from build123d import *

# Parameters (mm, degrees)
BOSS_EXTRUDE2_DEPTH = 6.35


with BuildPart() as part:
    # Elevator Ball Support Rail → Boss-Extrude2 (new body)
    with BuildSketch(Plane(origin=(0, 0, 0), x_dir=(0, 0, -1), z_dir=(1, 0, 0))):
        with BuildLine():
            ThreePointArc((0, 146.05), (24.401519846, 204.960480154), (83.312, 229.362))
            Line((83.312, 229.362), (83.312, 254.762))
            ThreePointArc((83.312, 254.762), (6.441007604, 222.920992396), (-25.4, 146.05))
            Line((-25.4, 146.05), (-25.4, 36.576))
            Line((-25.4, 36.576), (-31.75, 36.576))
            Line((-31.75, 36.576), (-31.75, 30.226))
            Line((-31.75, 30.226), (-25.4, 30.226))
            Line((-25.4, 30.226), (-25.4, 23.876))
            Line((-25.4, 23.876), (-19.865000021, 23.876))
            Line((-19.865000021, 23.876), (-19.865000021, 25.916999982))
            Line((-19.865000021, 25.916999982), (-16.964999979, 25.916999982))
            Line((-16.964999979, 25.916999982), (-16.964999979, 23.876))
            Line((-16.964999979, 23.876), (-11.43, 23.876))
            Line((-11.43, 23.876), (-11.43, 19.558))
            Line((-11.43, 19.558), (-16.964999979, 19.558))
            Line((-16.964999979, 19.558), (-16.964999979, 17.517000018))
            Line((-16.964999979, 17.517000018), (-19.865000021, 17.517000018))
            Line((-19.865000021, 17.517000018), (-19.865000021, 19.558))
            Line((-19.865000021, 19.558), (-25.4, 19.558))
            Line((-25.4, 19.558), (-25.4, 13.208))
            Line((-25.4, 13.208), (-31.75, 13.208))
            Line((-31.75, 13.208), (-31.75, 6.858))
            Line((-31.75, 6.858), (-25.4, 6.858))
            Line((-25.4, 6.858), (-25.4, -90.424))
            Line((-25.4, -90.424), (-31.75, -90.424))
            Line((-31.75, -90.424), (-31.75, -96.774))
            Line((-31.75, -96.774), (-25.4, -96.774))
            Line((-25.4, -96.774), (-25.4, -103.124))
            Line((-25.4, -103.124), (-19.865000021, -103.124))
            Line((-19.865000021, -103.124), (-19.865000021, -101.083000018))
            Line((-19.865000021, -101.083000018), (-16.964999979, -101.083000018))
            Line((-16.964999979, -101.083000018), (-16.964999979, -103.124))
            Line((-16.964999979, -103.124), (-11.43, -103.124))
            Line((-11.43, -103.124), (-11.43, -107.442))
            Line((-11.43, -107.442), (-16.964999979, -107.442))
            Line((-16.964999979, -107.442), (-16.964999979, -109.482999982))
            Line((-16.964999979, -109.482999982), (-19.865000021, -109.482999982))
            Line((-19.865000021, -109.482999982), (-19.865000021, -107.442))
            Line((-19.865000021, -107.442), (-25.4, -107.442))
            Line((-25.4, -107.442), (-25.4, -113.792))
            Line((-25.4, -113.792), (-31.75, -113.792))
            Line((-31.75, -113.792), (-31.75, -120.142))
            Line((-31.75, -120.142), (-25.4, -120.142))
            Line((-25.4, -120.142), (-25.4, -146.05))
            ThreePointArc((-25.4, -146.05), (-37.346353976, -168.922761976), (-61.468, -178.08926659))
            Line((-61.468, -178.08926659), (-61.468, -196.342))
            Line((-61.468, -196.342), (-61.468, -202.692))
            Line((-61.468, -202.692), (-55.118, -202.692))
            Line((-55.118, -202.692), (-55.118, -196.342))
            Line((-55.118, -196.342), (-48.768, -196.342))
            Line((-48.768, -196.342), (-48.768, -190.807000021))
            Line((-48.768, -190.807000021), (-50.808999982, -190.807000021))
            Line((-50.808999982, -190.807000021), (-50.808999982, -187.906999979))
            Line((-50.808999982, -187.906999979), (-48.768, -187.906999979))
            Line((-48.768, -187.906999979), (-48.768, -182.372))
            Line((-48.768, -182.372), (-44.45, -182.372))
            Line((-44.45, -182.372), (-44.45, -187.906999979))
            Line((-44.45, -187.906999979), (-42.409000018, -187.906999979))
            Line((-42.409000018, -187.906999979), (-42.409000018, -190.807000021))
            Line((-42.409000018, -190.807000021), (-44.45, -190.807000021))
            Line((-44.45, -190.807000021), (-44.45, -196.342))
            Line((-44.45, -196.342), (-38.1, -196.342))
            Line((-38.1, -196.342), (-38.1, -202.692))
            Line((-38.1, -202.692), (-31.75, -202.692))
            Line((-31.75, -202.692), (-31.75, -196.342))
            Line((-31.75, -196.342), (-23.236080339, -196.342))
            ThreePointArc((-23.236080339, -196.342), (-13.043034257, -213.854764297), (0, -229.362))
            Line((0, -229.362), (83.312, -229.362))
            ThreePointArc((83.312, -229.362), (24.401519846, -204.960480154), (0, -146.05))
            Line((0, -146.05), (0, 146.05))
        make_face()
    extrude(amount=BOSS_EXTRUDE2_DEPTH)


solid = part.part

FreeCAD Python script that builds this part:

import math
import FreeCAD as App
import Part
import Sketcher

V = App.Vector
Q = App.Units.Quantity

doc = App.newDocument("Part")
body = doc.addObject("PartDesign::Body", "Body")

sketch1 = body.newObject("Sketcher::SketchObject", "Sketch")
sketch1.AttachmentSupport = (doc.getObject("YZ_Plane"), [""])
sketch1.MapMode = "FlatFace"
sketch1.addGeometry([
    Part.ArcOfCircle(Part.Circle(V(146.05, -83.312, 0), V(0, 0, 1), 83.312), math.radians(0), math.radians(90)),
    Part.LineSegment(V(229.362, -83.312, 0), V(254.762, -83.312, 0)),
    Part.ArcOfCircle(Part.Circle(V(146.05, -83.312, 0), V(0, 0, 1), 108.712), math.radians(0), math.radians(90)),
    Part.LineSegment(V(146.05, 25.4, 0), V(36.576, 25.4, 0)),
    Part.LineSegment(V(36.576, 25.4, 0), V(36.576, 31.75, 0)),
    Part.LineSegment(V(36.576, 31.75, 0), V(30.226, 31.75, 0)),
    Part.LineSegment(V(30.226, 31.75, 0), V(30.226, 25.4, 0)),
    Part.LineSegment(V(30.226, 25.4, 0), V(23.876, 25.4, 0)),
    Part.LineSegment(V(23.876, 25.4, 0), V(23.876, 19.865, 0)),
    Part.LineSegment(V(23.876, 19.865, 0), V(25.917, 19.865, 0)),
    Part.LineSegment(V(25.917, 19.865, 0), V(25.917, 16.965, 0)),
    Part.LineSegment(V(25.917, 16.965, 0), V(23.876, 16.965, 0)),
    Part.LineSegment(V(23.876, 16.965, 0), V(23.876, 11.43, 0)),
    Part.LineSegment(V(23.876, 11.43, 0), V(19.558, 11.43, 0)),
    Part.LineSegment(V(19.558, 11.43, 0), V(19.558, 16.965, 0)),
    Part.LineSegment(V(19.558, 16.965, 0), V(17.517, 16.965, 0)),
    Part.LineSegment(V(17.517, 16.965, 0), V(17.517, 19.865, 0)),
    Part.LineSegment(V(17.517, 19.865, 0), V(19.558, 19.865, 0)),
    Part.LineSegment(V(19.558, 19.865, 0), V(19.558, 25.4, 0)),
    Part.LineSegment(V(19.558, 25.4, 0), V(13.208, 25.4, 0)),
    Part.LineSegment(V(13.208, 25.4, 0), V(13.208, 31.75, 0)),
    Part.LineSegment(V(13.208, 31.75, 0), V(6.858, 31.75, 0)),
    Part.LineSegment(V(6.858, 31.75, 0), V(6.858, 25.4, 0)),
    Part.LineSegment(V(6.858, 25.4, 0), V(-90.424, 25.4, 0)),
    Part.LineSegment(V(-90.424, 25.4, 0), V(-90.424, 31.75, 0)),
    Part.LineSegment(V(-90.424, 31.75, 0), V(-96.774, 31.75, 0)),
    Part.LineSegment(V(-96.774, 31.75, 0), V(-96.774, 25.4, 0)),
    Part.LineSegment(V(-96.774, 25.4, 0), V(-103.124, 25.4, 0)),
    Part.LineSegment(V(-103.124, 25.4, 0), V(-103.124, 19.865, 0)),
    Part.LineSegment(V(-103.124, 19.865, 0), V(-101.083, 19.865, 0)),
    Part.LineSegment(V(-101.083, 19.865, 0), V(-101.083, 16.965, 0)),
    Part.LineSegment(V(-101.083, 16.965, 0), V(-103.124, 16.965, 0)),
    Part.LineSegment(V(-103.124, 16.965, 0), V(-103.124, 11.43, 0)),
    Part.LineSegment(V(-103.124, 11.43, 0), V(-107.442, 11.43, 0)),
    Part.LineSegment(V(-107.442, 11.43, 0), V(-107.442, 16.965, 0)),
    Part.LineSegment(V(-107.442, 16.965, 0), V(-109.483, 16.965, 0)),
    Part.LineSegment(V(-109.483, 16.965, 0), V(-109.483, 19.865, 0)),
    Part.LineSegment(V(-109.483, 19.865, 0), V(-107.442, 19.865, 0)),
    Part.LineSegment(V(-107.442, 19.865, 0), V(-107.442, 25.4, 0)),
    Part.LineSegment(V(-107.442, 25.4, 0), V(-113.792, 25.4, 0)),
    Part.LineSegment(V(-113.792, 25.4, 0), V(-113.792, 31.75, 0)),
    Part.LineSegment(V(-113.792, 31.75, 0), V(-120.142, 31.75, 0)),
    Part.LineSegment(V(-120.142, 31.75, 0), V(-120.142, 25.4, 0)),
    Part.LineSegment(V(-120.142, 25.4, 0), V(-146.05, 25.4, 0)),
    Part.ArcOfCircle(Part.Circle(V(-141.767973, 61.468, 0), V(0, 0, 1), 36.321294), math.radians(180), math.radians(263.229481)),
    Part.LineSegment(V(-178.089267, 61.468, 0), V(-202.692, 61.468, 0)),
    Part.LineSegment(V(-202.692, 61.468, 0), V(-202.692, 55.118, 0)),
    Part.LineSegment(V(-202.692, 55.118, 0), V(-196.342, 55.118, 0)),
    Part.LineSegment(V(-196.342, 55.118, 0), V(-196.342, 48.768, 0)),
    Part.LineSegment(V(-196.342, 48.768, 0), V(-190.807, 48.768, 0)),
    Part.LineSegment(V(-190.807, 48.768, 0), V(-190.807, 50.809, 0)),
    Part.LineSegment(V(-190.807, 50.809, 0), V(-187.907, 50.809, 0)),
    Part.LineSegment(V(-187.907, 50.809, 0), V(-187.907, 48.768, 0)),
    Part.LineSegment(V(-187.907, 48.768, 0), V(-182.372, 48.768, 0)),
    Part.LineSegment(V(-182.372, 48.768, 0), V(-182.372, 44.45, 0)),
    Part.LineSegment(V(-182.372, 44.45, 0), V(-187.907, 44.45, 0)),
    Part.LineSegment(V(-187.907, 44.45, 0), V(-187.907, 42.409, 0)),
    Part.LineSegment(V(-187.907, 42.409, 0), V(-190.807, 42.409, 0)),
    Part.LineSegment(V(-190.807, 42.409, 0), V(-190.807, 44.45, 0)),
    Part.LineSegment(V(-190.807, 44.45, 0), V(-196.342, 44.45, 0)),
    Part.LineSegment(V(-196.342, 44.45, 0), V(-196.342, 38.1, 0)),
    Part.LineSegment(V(-196.342, 38.1, 0), V(-202.692, 38.1, 0)),
    Part.LineSegment(V(-202.692, 38.1, 0), V(-202.692, 31.75, 0)),
    Part.LineSegment(V(-202.692, 31.75, 0), V(-196.342, 31.75, 0)),
    Part.LineSegment(V(-196.342, 31.75, 0), V(-196.342, 23.23608, 0)),
    Part.ArcOfCircle(Part.Circle(V(-146.05, -83.312, 0), V(0, 0, 1), 117.82096), math.radians(115.267885), math.radians(135)),
    Part.LineSegment(V(-229.362, 0, 0), V(-229.362, -83.312, 0)),
    Part.ArcOfCircle(Part.Circle(V(-146.05, -83.312, 0), V(0, 0, 1), 83.312), math.radians(90), math.radians(180)),
    Part.LineSegment(V(-146.05, 0, 0), V(146.05, 0, 0)),
], False)
sketch1.addConstraint([
    Sketcher.Constraint("Coincident", 0, 1, 1, 1),
    Sketcher.Constraint("Coincident", 1, 2, 2, 1),
    Sketcher.Constraint("Tangent", 2, 2, 3, 1),
    Sketcher.Constraint("Coincident", 3, 2, 4, 1),
    Sketcher.Constraint("Coincident", 4, 2, 5, 1),
    Sketcher.Constraint("Coincident", 5, 2, 6, 1),
    Sketcher.Constraint("Coincident", 6, 2, 7, 1),
    Sketcher.Constraint("Coincident", 7, 2, 8, 1),
    Sketcher.Constraint("Coincident", 8, 2, 9, 1),
    Sketcher.Constraint("Coincident", 9, 2, 10, 1),
    Sketcher.Constraint("Coincident", 10, 2, 11, 1),
    Sketcher.Constraint("Coincident", 11, 2, 12, 1),
    Sketcher.Constraint("Coincident", 12, 2, 13, 1),
    Sketcher.Constraint("Coincident", 13, 2, 14, 1),
    Sketcher.Constraint("Coincident", 14, 2, 15, 1),
    Sketcher.Constraint("Coincident", 15, 2, 16, 1),
    Sketcher.Constraint("Coincident", 16, 2, 17, 1),
    Sketcher.Constraint("Coincident", 17, 2, 18, 1),
    Sketcher.Constraint("Coincident", 18, 2, 19, 1),
    Sketcher.Constraint("Coincident", 19, 2, 20, 1),
    Sketcher.Constraint("Coincident", 20, 2, 21, 1),
    Sketcher.Constraint("Coincident", 21, 2, 22, 1),
    Sketcher.Constraint("Coincident", 22, 2, 23, 1),
    Sketcher.Constraint("Coincident", 23, 2, 24, 1),
    Sketcher.Constraint("Coincident", 24, 2, 25, 1),
    Sketcher.Constraint("Coincident", 25, 2, 26, 1),
    Sketcher.Constraint("Coincident", 26, 2, 27, 1),
    Sketcher.Constraint("Coincident", 27, 2, 28, 1),
    Sketcher.Constraint("Coincident", 28, 2, 29, 1),
    Sketcher.Constraint("Coincident", 29, 2, 30, 1),
    Sketcher.Constraint("Coincident", 30, 2, 31, 1),
    Sketcher.Constraint("Coincident", 31, 2, 32, 1),
    Sketcher.Constraint("Coincident", 32, 2, 33, 1),
    Sketcher.Constraint("Coincident", 33, 2, 34, 1),
    Sketcher.Constraint("Coincident", 34, 2, 35, 1),
    Sketcher.Constraint("Coincident", 35, 2, 36, 1),
    Sketcher.Constraint("Coincident", 36, 2, 37, 1),
    Sketcher.Constraint("Coincident", 37, 2, 38, 1),
    Sketcher.Constraint("Coincident", 38, 2, 39, 1),
    Sketcher.Constraint("Coincident", 39, 2, 40, 1),
    Sketcher.Constraint("Coincident", 40, 2, 41, 1),
    Sketcher.Constraint("Coincident", 41, 2, 42, 1),
    Sketcher.Constraint("Coincident", 42, 2, 43, 1),
    Sketcher.Constraint("Coincident", 43, 2, 44, 2),
    Sketcher.Constraint("Coincident", 44, 1, 45, 1),
    Sketcher.Constraint("Coincident", 45, 2, 46, 1),
    Sketcher.Constraint("Coincident", 46, 2, 47, 1),
    Sketcher.Constraint("Coincident", 47, 2, 48, 1),
    Sketcher.Constraint("Coincident", 48, 2, 49, 1),
    Sketcher.Constraint("Coincident", 49, 2, 50, 1),
    Sketcher.Constraint("Coincident", 50, 2, 51, 1),
    Sketcher.Constraint("Coincident", 51, 2, 52, 1),
    Sketcher.Constraint("Coincident", 52, 2, 53, 1),
    Sketcher.Constraint("Coincident", 53, 2, 54, 1),
    Sketcher.Constraint("Coincident", 54, 2, 55, 1),
    Sketcher.Constraint("Coincident", 55, 2, 56, 1),
    Sketcher.Constraint("Coincident", 56, 2, 57, 1),
    Sketcher.Constraint("Coincident", 57, 2, 58, 1),
    Sketcher.Constraint("Coincident", 58, 2, 59, 1),
    Sketcher.Constraint("Coincident", 59, 2, 60, 1),
    Sketcher.Constraint("Coincident", 60, 2, 61, 1),
    Sketcher.Constraint("Coincident", 61, 2, 62, 1),
    Sketcher.Constraint("Coincident", 62, 2, 63, 1),
    Sketcher.Constraint("Coincident", 63, 2, 64, 1),
    Sketcher.Constraint("Coincident", 64, 2, 65, 1),
    Sketcher.Constraint("Coincident", 65, 2, 66, 1),
    Sketcher.Constraint("Tangent", 66, 2, 67, 2),
    Sketcher.Constraint("Tangent", 67, 1, 68, 1),
    Sketcher.Constraint("Tangent", 68, 2, 0, 2),
    Sketcher.Constraint("Horizontal", 1),
    Sketcher.Constraint("Horizontal", 3),
    Sketcher.Constraint("Vertical", 4),
    Sketcher.Constraint("Horizontal", 5),
    Sketcher.Constraint("Vertical", 6),
    Sketcher.Constraint("Horizontal", 7),
    Sketcher.Constraint("Vertical", 8),
    Sketcher.Constraint("Horizontal", 9),
    Sketcher.Constraint("Vertical", 10),
    Sketcher.Constraint("Horizontal", 11),
    Sketcher.Constraint("Vertical", 12),
    Sketcher.Constraint("Horizontal", 13),
    Sketcher.Constraint("Vertical", 14),
    Sketcher.Constraint("Horizontal", 15),
    Sketcher.Constraint("Vertical", 16),
    Sketcher.Constraint("Horizontal", 17),
    Sketcher.Constraint("Vertical", 18),
    Sketcher.Constraint("Horizontal", 19),
    Sketcher.Constraint("Vertical", 20),
    Sketcher.Constraint("Horizontal", 21),
    Sketcher.Constraint("Vertical", 22),
    Sketcher.Constraint("Horizontal", 23),
    Sketcher.Constraint("Vertical", 24),
    Sketcher.Constraint("Horizontal", 25),
    Sketcher.Constraint("Vertical", 26),
    Sketcher.Constraint("Horizontal", 27),
    Sketcher.Constraint("Vertical", 28),
    Sketcher.Constraint("Horizontal", 29),
    Sketcher.Constraint("Vertical", 30),
    Sketcher.Constraint("Horizontal", 31),
    Sketcher.Constraint("Vertical", 32),
    Sketcher.Constraint("Horizontal", 33),
    Sketcher.Constraint("Vertical", 34),
    Sketcher.Constraint("Horizontal", 35),
    Sketcher.Constraint("Vertical", 36),
    Sketcher.Constraint("Horizontal", 37),
    Sketcher.Constraint("Vertical", 38),
    Sketcher.Constraint("Horizontal", 39),
    Sketcher.Constraint("Vertical", 40),
    Sketcher.Constraint("Horizontal", 41),
    Sketcher.Constraint("Vertical", 42),
    Sketcher.Constraint("Horizontal", 43),
    Sketcher.Constraint("Horizontal", 45),
    Sketcher.Constraint("Vertical", 46),
    Sketcher.Constraint("Horizontal", 47),
    Sketcher.Constraint("Vertical", 48),
    Sketcher.Constraint("Horizontal", 49),
    Sketcher.Constraint("Vertical", 50),
    Sketcher.Constraint("Horizontal", 51),
    Sketcher.Constraint("Vertical", 52),
    Sketcher.Constraint("Horizontal", 53),
    Sketcher.Constraint("Vertical", 54),
    Sketcher.Constraint("Horizontal", 55),
    Sketcher.Constraint("Vertical", 56),
    Sketcher.Constraint("Horizontal", 57),
    Sketcher.Constraint("Vertical", 58),
    Sketcher.Constraint("Horizontal", 59),
    Sketcher.Constraint("Vertical", 60),
    Sketcher.Constraint("Horizontal", 61),
    Sketcher.Constraint("Vertical", 62),
    Sketcher.Constraint("Horizontal", 63),
    Sketcher.Constraint("Vertical", 64),
    Sketcher.Constraint("Vertical", 66),
    Sketcher.Constraint("Horizontal", 68),
    Sketcher.Constraint("Coincident", 2, 3, 0, 3),
    Sketcher.Constraint("Coincident", 67, 3, 65, 3),
    Sketcher.Constraint("Equal", 0, 67),
    Sketcher.Constraint("Symmetric", 67, 1, 68, 2, -1, 1),
    Sketcher.Constraint("Symmetric", 2, 2, 43, 2, -2),
    Sketcher.Constraint("PointOnObject", 65, 2, -1),
    Sketcher.Constraint("Horizontal", 67, 3, 0, 1),
    Sketcher.Constraint("Horizontal", 3, 2, 6, 2),
    Sketcher.Constraint("Horizontal", 11, 2, 14, 2),
    Sketcher.Constraint("Horizontal", 9, 2, 16, 2),
    Sketcher.Constraint("Horizontal", 7, 2, 18, 2),
    Sketcher.Constraint("Horizontal", 5, 2, 20, 2),
    Sketcher.Constraint("Horizontal", 19, 2, 22, 2),
    Sketcher.Constraint("Horizontal", 21, 2, 24, 2),
    Sketcher.Constraint("Horizontal", 23, 2, 26, 2),
    Sketcher.Constraint("Horizontal", 17, 2, 28, 2),
    Sketcher.Constraint("Horizontal", 15, 2, 30, 2),
    Sketcher.Constraint("Horizontal", 13, 2, 32, 2),
    Sketcher.Constraint("Horizontal", 31, 2, 34, 2),
    Sketcher.Constraint("Horizontal", 29, 2, 36, 2),
    Sketcher.Constraint("Horizontal", 27, 2, 38, 2),
    Sketcher.Constraint("Horizontal", 25, 2, 40, 2),
    Sketcher.Constraint("Horizontal", 49, 2, 52, 2),
    Sketcher.Constraint("Horizontal", 55, 2, 58, 2),
    Sketcher.Constraint("Horizontal", 41, 2, 62, 2),
    Sketcher.Constraint("Vertical", 8, 2, 11, 2),
    Sketcher.Constraint("Vertical", 14, 2, 17, 2),
    Sketcher.Constraint("Vertical", 28, 2, 31, 2),
    Sketcher.Constraint("Vertical", 34, 2, 37, 2),
    Sketcher.Constraint("Vertical", 52, 2, 55, 2),
    Sketcher.Constraint("Vertical", 50, 2, 57, 2),
    Sketcher.Constraint("Vertical", 48, 2, 59, 2),
    Sketcher.Constraint("Vertical", 46, 2, 61, 2),
    Sketcher.Constraint("Vertical", 60, 2, 63, 2),
    Sketcher.Constraint("Equal", 5, 7),
    Sketcher.Constraint("Equal", 11, 15),
    Sketcher.Constraint("Equal", 7, 19),
    Sketcher.Constraint("Equal", 19, 21),
    Sketcher.Constraint("Equal", 21, 25),
    Sketcher.Constraint("Equal", 25, 27),
    Sketcher.Constraint("Equal", 17, 29),
    Sketcher.Constraint("Equal", 13, 33),
    Sketcher.Constraint("Equal", 31, 35),
    Sketcher.Constraint("Equal", 27, 39),
    Sketcher.Constraint("Equal", 39, 41),
    Sketcher.Constraint("Equal", 41, 47),
    Sketcher.Constraint("Equal", 49, 53),
    Sketcher.Constraint("Equal", 63, 4),
    Sketcher.Constraint("Equal", 59, 8),
    Sketcher.Constraint("Equal", 57, 10),
    Sketcher.Constraint("Equal", 8, 12),
    Sketcher.Constraint("Equal", 42, 46),
    Sketcher.Constraint("Equal", 46, 48),
    Sketcher.Constraint("Equal", 37, 50),
    Sketcher.Constraint("Equal", 33, 54),
    Sketcher.Constraint("Equal", 52, 56),
    Sketcher.Constraint("Equal", 48, 60),
    Sketcher.Constraint("Equal", 60, 62),
    Sketcher.Constraint("DistanceX", 1, 1, 1, 2, Q("1 in")),
    Sketcher.Constraint("Radius", 0, Q("3.28 in")),
    Sketcher.Constraint("DistanceX", 68, 1, 68, 2, Q("11.5 in")),
    Sketcher.Constraint("DistanceX", 3, 2, 3, 1, Q("4.31 in")),
    Sketcher.Constraint("DistanceX", 5, 2, 5, 1, Q("0.25 in")),
    Sketcher.Constraint("DistanceX", 13, 2, 13, 1, Q("0.17 in")),
    Sketcher.Constraint("DistanceX", 23, 2, 23, 1, Q("3.83 in")),
    Sketcher.Constraint("DistanceY", -1, 1, 44, 3, Q("2.42 in")),
    Sketcher.Constraint("DistanceY", -1, 1, 12, 2, Q("0.45 in")),
    Sketcher.Constraint("DistanceX", 45, 2, -1, 1, Q("7.98 in")),
    Sketcher.Constraint("DistanceX", 9, 1, 9, 2, 2.041),
    Sketcher.Constraint("DistanceX", 49, 1, 49, 2, 5.535),
    Sketcher.Constraint("Radius", 44, 36.321294),
])
pad1 = body.newObject("PartDesign::Pad", "Pad")
pad1.Profile = sketch1
pad1.Length = Q("0.25 in")

doc.recompute()
